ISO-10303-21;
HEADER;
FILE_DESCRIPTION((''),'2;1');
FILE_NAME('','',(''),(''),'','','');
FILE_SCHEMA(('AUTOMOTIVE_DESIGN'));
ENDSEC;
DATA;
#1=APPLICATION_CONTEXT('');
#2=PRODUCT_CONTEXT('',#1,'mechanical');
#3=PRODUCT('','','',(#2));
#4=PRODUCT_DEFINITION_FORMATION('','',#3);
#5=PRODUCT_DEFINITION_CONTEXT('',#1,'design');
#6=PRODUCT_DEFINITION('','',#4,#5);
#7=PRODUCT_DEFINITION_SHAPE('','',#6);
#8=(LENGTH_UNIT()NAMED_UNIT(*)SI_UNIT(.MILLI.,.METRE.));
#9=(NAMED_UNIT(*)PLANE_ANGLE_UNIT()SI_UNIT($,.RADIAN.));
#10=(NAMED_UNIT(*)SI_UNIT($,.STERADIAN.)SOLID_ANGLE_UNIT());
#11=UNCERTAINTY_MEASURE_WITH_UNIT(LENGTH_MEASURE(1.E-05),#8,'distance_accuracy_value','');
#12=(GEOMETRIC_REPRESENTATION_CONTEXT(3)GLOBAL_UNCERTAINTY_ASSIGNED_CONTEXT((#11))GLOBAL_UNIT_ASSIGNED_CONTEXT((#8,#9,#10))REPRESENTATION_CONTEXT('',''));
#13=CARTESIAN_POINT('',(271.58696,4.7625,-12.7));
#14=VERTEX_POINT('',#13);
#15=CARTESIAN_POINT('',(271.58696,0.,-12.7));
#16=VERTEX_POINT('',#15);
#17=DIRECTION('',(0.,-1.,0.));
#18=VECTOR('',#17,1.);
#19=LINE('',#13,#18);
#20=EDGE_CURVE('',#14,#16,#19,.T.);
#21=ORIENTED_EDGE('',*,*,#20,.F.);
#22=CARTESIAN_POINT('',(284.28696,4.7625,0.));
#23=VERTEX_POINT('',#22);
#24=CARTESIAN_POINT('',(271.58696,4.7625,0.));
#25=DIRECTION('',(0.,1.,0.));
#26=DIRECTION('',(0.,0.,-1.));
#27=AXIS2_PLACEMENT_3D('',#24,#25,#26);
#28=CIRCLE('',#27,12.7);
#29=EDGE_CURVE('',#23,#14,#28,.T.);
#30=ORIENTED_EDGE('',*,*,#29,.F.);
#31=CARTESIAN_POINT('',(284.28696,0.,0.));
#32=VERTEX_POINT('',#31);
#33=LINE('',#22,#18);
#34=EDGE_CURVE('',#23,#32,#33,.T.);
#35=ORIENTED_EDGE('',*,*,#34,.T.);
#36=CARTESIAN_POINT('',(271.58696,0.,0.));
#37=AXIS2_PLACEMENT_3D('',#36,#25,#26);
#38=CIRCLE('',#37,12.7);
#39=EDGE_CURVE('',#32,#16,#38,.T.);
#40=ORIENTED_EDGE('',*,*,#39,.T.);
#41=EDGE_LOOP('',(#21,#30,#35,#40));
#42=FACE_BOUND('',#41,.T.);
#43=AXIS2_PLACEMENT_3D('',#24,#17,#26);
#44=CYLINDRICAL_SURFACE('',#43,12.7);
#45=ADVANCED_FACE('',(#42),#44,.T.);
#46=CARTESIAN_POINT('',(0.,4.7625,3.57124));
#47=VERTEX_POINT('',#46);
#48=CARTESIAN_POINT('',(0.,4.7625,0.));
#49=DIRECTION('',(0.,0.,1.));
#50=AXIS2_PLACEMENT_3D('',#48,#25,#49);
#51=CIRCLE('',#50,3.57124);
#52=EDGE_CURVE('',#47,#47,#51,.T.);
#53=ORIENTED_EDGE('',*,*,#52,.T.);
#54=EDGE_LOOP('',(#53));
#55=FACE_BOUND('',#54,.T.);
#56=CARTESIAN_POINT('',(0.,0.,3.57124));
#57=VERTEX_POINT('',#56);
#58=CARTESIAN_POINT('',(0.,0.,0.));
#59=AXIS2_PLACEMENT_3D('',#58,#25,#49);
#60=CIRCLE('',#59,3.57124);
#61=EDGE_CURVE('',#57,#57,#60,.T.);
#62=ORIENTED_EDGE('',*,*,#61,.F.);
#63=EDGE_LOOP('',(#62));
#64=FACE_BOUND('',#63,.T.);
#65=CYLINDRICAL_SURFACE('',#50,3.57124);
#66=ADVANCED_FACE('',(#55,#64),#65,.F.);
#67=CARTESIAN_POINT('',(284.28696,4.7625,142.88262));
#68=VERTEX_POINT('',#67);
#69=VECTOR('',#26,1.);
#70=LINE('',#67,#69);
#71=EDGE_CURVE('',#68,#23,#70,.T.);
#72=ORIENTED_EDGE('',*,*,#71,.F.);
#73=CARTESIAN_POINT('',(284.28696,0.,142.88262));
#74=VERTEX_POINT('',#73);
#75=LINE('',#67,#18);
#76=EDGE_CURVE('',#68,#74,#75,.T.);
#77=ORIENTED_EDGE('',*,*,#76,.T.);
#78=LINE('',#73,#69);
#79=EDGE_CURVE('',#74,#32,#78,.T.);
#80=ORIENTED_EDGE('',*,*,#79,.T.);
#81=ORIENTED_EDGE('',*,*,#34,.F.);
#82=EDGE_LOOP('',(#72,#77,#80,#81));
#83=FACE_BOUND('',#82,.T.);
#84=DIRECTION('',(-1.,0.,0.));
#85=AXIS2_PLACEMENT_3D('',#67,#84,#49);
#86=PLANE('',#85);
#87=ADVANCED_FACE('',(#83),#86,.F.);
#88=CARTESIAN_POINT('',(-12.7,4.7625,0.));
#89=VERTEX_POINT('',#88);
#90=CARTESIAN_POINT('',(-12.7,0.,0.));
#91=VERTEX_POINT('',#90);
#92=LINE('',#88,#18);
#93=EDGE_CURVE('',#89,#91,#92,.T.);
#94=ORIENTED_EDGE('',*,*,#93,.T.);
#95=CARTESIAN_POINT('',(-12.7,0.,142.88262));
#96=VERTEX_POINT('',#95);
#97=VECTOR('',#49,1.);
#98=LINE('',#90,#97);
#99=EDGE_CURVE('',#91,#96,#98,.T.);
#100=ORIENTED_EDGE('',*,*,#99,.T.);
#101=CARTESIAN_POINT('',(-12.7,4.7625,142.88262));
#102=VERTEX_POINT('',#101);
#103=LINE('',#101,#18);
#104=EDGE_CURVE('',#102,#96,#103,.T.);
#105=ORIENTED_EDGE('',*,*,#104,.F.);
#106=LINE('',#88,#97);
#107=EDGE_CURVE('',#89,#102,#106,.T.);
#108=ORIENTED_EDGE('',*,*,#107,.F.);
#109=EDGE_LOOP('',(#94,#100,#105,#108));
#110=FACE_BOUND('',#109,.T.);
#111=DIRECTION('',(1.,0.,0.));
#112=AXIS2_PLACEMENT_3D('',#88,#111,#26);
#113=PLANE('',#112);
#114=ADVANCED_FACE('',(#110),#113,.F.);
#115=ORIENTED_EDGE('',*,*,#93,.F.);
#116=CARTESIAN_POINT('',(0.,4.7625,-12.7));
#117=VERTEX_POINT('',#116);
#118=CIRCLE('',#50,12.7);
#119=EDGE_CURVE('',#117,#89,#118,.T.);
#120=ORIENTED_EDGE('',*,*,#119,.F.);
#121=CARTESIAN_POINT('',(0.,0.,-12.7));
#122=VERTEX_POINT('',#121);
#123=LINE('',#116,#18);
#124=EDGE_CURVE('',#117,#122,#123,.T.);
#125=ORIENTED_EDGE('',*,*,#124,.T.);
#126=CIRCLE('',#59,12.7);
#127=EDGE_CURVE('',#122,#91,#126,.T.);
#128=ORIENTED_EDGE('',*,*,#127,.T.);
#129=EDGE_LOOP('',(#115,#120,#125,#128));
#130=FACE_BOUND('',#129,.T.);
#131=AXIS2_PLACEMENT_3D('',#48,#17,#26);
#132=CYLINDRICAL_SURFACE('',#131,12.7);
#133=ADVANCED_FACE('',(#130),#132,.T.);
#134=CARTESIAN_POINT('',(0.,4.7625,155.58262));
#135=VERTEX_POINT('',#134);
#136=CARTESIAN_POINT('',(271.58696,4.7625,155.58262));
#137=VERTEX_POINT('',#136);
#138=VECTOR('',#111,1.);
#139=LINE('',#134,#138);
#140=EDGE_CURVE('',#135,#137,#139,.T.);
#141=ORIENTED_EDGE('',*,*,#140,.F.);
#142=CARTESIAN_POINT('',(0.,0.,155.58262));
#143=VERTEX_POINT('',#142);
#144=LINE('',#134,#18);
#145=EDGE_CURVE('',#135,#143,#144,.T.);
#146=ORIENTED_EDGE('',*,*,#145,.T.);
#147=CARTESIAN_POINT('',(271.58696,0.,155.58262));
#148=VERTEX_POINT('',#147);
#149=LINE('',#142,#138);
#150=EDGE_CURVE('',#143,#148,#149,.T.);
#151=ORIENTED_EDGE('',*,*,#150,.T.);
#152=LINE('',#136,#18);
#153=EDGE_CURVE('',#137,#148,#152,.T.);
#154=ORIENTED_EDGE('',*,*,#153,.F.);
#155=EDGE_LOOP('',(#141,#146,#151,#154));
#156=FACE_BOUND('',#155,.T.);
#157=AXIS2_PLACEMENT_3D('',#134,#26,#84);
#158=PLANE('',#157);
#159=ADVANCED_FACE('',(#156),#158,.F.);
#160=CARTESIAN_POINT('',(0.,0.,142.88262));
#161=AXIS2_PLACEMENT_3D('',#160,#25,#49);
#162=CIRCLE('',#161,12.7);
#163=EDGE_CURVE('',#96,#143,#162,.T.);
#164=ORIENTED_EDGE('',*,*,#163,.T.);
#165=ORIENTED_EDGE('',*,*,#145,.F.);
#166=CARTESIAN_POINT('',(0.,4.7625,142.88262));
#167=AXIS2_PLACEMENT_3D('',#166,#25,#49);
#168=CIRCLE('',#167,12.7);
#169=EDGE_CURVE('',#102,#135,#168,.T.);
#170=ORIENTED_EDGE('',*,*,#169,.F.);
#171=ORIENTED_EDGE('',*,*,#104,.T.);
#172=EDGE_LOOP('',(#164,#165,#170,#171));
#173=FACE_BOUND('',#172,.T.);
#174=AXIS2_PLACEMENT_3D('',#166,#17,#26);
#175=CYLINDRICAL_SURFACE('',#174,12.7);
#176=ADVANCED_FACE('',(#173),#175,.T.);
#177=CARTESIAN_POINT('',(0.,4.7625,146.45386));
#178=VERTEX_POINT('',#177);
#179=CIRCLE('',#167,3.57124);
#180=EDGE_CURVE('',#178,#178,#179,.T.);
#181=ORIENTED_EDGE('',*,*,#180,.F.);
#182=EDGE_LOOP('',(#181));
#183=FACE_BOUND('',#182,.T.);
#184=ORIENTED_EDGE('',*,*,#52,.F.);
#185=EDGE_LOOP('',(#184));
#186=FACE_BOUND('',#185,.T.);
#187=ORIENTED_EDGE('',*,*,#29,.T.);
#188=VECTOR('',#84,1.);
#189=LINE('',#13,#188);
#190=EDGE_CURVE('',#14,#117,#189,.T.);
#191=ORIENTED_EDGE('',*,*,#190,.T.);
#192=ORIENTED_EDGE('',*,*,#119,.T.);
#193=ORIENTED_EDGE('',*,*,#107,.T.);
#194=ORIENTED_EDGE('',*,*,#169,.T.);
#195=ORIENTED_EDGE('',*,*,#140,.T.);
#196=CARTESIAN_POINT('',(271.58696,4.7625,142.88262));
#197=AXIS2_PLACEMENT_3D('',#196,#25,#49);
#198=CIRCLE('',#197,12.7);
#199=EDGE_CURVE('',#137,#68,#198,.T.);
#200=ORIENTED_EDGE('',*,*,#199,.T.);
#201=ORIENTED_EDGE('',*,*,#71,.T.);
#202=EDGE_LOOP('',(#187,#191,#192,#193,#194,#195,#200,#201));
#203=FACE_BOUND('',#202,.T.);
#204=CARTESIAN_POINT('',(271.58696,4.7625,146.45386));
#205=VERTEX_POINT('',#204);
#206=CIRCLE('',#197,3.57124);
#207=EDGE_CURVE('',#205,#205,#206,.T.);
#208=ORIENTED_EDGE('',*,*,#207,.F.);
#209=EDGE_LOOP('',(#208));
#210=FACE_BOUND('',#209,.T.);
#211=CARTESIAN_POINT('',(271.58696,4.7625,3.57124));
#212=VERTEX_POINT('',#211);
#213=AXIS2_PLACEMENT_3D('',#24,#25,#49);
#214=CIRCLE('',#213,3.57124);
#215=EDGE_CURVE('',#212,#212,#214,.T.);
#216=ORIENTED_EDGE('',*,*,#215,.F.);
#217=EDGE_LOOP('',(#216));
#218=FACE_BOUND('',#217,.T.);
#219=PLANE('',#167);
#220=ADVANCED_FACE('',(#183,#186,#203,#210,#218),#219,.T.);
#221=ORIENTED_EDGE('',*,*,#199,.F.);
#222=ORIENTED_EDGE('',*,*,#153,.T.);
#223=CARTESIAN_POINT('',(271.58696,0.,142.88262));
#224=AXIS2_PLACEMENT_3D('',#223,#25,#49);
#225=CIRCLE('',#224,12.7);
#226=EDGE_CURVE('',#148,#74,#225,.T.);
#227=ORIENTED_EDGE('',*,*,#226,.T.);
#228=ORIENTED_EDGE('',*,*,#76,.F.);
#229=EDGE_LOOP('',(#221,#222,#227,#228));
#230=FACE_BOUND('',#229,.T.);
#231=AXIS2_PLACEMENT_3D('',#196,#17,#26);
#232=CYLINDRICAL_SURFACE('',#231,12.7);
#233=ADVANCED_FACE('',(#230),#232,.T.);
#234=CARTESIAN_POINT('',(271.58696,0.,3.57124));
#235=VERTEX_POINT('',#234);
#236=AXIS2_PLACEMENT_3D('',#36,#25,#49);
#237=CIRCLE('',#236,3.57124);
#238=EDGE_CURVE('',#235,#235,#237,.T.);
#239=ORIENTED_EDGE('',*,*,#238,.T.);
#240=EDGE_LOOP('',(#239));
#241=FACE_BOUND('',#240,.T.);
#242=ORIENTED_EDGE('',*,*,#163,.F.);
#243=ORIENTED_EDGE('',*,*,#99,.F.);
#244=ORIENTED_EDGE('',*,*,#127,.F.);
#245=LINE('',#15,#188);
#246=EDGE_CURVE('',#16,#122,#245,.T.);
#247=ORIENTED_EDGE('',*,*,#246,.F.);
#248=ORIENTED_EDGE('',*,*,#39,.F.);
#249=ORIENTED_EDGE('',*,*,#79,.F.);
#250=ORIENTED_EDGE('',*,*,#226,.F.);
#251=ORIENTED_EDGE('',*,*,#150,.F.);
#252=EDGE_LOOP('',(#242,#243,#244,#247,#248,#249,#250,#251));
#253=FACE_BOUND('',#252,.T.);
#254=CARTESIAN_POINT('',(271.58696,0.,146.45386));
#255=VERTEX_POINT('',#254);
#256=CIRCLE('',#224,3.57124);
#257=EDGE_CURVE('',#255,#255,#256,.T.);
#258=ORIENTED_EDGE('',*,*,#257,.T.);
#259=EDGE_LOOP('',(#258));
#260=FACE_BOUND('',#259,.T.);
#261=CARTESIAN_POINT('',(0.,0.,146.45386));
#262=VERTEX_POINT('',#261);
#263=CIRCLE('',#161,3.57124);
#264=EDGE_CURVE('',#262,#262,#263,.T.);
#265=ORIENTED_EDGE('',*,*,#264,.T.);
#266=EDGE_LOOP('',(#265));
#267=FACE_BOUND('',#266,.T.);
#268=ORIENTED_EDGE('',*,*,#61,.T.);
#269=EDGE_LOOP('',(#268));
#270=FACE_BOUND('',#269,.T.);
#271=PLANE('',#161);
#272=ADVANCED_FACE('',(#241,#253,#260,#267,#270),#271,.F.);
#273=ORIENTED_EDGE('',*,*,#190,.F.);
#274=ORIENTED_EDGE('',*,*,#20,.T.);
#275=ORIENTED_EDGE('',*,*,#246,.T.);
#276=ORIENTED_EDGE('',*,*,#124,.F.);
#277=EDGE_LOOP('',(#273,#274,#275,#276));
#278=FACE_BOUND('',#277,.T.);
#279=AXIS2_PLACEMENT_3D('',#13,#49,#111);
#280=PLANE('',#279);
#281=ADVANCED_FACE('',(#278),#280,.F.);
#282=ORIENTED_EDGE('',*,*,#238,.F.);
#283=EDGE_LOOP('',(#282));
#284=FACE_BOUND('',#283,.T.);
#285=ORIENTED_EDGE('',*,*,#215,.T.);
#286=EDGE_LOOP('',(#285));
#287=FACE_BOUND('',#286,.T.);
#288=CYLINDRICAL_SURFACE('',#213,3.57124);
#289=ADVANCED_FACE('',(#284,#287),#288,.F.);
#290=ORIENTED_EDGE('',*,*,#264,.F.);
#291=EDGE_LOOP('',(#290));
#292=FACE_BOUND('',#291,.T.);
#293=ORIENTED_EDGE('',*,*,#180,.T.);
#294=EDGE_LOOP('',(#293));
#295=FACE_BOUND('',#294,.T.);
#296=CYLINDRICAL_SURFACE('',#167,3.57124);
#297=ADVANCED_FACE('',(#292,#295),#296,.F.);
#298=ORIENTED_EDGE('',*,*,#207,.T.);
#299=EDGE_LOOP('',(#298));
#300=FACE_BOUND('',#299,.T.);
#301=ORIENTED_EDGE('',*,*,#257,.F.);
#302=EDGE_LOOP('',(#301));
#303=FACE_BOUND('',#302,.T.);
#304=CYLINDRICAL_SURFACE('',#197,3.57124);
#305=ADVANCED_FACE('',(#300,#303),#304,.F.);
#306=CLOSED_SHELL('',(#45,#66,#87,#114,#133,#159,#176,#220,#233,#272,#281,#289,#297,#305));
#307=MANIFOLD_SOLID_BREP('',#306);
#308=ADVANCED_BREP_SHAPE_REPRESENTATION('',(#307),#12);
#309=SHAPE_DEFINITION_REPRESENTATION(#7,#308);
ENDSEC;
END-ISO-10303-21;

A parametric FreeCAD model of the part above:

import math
import FreeCAD as App
import Part
import Sketcher
from FreeCAD import Vector
Q = App.Units.Quantity

doc = App.newDocument("Part")
body = doc.addObject("PartDesign::Body", "Body")

sketch1 = body.newObject("Sketcher::SketchObject", "Sketch")
sketch1.AttachmentSupport = (doc.getObject("XZ_Plane"), [""])
sketch1.MapMode = "FlatFace"
sketch1.addGeometry([
    Part.LineSegment(Vector(-12.7, 0, 0), Vector(-12.7, 142.88262, 0)),
    Part.ArcOfCircle(Part.Circle(Vector(0, 142.88262, 0), Vector(0, 0, 1), 12.7), math.radians(90), math.radians(180)),
    Part.LineSegment(Vector(0, 155.58262, 0), Vector(271.58696, 155.58262, 0)),
    Part.ArcOfCircle(Part.Circle(Vector(271.58696, 142.88262, 0), Vector(0, 0, 1), 12.7), math.radians(0), math.radians(90)),
    Part.LineSegment(Vector(284.28696, 142.88262, 0), Vector(284.28696, 0, 0)),
    Part.ArcOfCircle(Part.Circle(Vector(271.58696, 0, 0), Vector(0, 0, 1), 12.7), math.radians(-90), math.radians(0)),
    Part.LineSegment(Vector(271.58696, -12.7, 0), Vector(0, -12.7, 0)),
    Part.ArcOfCircle(Part.Circle(Vector(0, 0, 0), Vector(0, 0, 1), 12.7), math.radians(180), math.radians(270)),
], False)
sketch1.addConstraint([
    Sketcher.Constraint("Tangent", 0, 2, 1, 2),
    Sketcher.Constraint("Tangent", 1, 1, 2, 1),
    Sketcher.Constraint("Tangent", 2, 2, 3, 2),
    Sketcher.Constraint("Tangent", 3, 1, 4, 1),
    Sketcher.Constraint("Tangent", 4, 2, 5, 2),
    Sketcher.Constraint("Tangent", 5, 1, 6, 1),
    Sketcher.Constraint("Tangent", 6, 2, 7, 2),
    Sketcher.Constraint("Tangent", 7, 1, 0, 1),
    Sketcher.Constraint("Vertical", 0),
    Sketcher.Constraint("Horizontal", 2),
    Sketcher.Constraint("Vertical", 4),
    Sketcher.Constraint("Horizontal", 6),
    Sketcher.Constraint("Coincident", 7, 3, -1, 1),
    Sketcher.Constraint("Equal", 1, 3),
    Sketcher.Constraint("Equal", 3, 5),
    Sketcher.Constraint("Equal", 5, 7),
    Sketcher.Constraint("Radius", 1, Q("0.5 in")),
    Sketcher.Constraint("DistanceX", 2, 1, 2, 2, Q("10.6924 in")),
    Sketcher.Constraint("DistanceY", 0, 1, 0, 2, Q("5.6253 in")),
])
pad1 = body.newObject("PartDesign::Pad", "Pad")
pad1.Profile = sketch1
pad1.Length = Q("0.1875 in")
pad1.Reversed = True

sketch2 = body.newObject("Sketcher::SketchObject", "Sketch001")
sketch2.AttachmentSupport = (doc.getObject("XZ_Plane"), [""])
sketch2.MapMode = "FlatFace"
sketch2.AttachmentOffset = App.Placement(Vector(0, 0, -0.1875 * 25.4), App.Rotation())
sketch2.addGeometry([
    Part.Circle(Vector(0, 0, 0), Vector(0, 0, 1), 3.57124),
    Part.Circle(Vector(0, 142.88262, 0), Vector(0, 0, 1), 3.57124),
    Part.Circle(Vector(271.58696, 142.88262, 0), Vector(0, 0, 1), 3.57124),
    Part.Circle(Vector(271.58696, 0, 0), Vector(0, 0, 1), 3.57124),
], False)
sketch2.addConstraint([
    Sketcher.Constraint("Coincident", 0, 3, -1, 1),
    Sketcher.Constraint("Equal", 0, 1),
    Sketcher.Constraint("Equal", 1, 2),
    Sketcher.Constraint("Equal", 2, 3),
    Sketcher.Constraint("PointOnObject", 1, 3, -2),
    Sketcher.Constraint("PointOnObject", 3, 3, -1),
    Sketcher.Constraint("Horizontal", 1, 3, 2, 3),
    Sketcher.Constraint("Vertical", 2, 3, 3, 3),
    Sketcher.Constraint("Diameter", 0, Q("0.2812 in")),
    Sketcher.Constraint("DistanceY", -1, 1, 1, 3, Q("5.6253 in")),
    Sketcher.Constraint("DistanceX", -1, 1, 2, 3, Q("10.6924 in")),
])
doc.recompute()
hole = body.newObject("PartDesign::Hole", "Hole")
hole.Profile = sketch2
hole.ThreadType = "None"
hole.Diameter = Q("0.2812 in")
hole.DepthType = "ThroughAll"
hole.Reversed = True

doc.recompute()
